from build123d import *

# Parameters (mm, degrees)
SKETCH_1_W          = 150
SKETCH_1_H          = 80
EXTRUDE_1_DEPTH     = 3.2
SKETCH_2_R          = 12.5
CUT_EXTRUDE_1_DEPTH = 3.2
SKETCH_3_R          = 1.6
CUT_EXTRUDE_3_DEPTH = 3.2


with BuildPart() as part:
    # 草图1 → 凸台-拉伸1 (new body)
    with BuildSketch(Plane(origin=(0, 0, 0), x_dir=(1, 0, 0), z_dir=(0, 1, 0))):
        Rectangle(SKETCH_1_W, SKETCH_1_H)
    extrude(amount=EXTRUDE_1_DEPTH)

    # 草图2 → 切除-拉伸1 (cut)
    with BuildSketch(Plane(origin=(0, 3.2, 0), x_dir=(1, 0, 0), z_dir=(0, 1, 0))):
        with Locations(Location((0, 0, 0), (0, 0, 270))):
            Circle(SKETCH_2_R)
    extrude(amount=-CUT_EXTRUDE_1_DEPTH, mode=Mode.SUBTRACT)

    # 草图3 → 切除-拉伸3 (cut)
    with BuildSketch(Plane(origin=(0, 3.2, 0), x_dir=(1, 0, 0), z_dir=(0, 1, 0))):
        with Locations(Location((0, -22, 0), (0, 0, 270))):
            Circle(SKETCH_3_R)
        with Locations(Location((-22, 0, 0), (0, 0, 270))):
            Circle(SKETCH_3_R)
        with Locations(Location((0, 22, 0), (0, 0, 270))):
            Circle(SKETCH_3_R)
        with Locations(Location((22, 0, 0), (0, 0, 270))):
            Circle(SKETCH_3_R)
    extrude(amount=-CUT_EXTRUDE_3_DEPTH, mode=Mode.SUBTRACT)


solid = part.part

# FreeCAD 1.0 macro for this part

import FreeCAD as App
import Part
import Sketcher
from FreeCAD import Vector
Q = App.Units.Quantity


def add_polygon(sketch, points):
    """Adds a closed chain of lines whose ends are joined by coincident constraints."""
    first, n = sketch.GeometryCount, len(points)
    for a, b in zip(points, points[1:] + points[:1]):
        sketch.addGeometry(Part.LineSegment(App.Vector(*a, 0), App.Vector(*b, 0)), False)
    for i in range(n):
        sketch.addConstraint(Sketcher.Constraint("Coincident", first + i, 2, first + (i + 1) % n, 1))

doc = App.newDocument("Part")
body = doc.addObject("PartDesign::Body", "Body")

# Sketch on XZ plane
sketch1 = body.newObject("Sketcher::SketchObject", "Sketch")
sketch1.AttachmentSupport = (doc.getObject("XZ_Plane"), [""])
sketch1.MapMode = "FlatFace"
add_polygon(sketch1, [(-75, -40), (-75, 40), (75, 40), (75, -40)])  # lines 0-3
sketch1.addConstraint(Sketcher.Constraint("Vertical", 0))
sketch1.addConstraint(Sketcher.Constraint("Horizontal", 1))
sketch1.addConstraint(Sketcher.Constraint("Vertical", 2))
sketch1.addConstraint(Sketcher.Constraint("Horizontal", 3))
sketch1.addConstraint(Sketcher.Constraint("Symmetric", 0, 2, 2, 2, -1, 1))
sketch1.addConstraint(Sketcher.Constraint("DistanceX", 1, 1, 1, 2, Q("150 mm")))
sketch1.addConstraint(Sketcher.Constraint("DistanceY", 0, 1, 0, 2, Q("80 mm")))
pad1 = body.newObject("PartDesign::Pad", "Pad")
pad1.Profile = sketch1
pad1.Length = 3.2
pad1.Reversed = True

# Sketch on XZ plane
sketch2 = body.newObject("Sketcher::SketchObject", "Sketch001")
sketch2.AttachmentSupport = (doc.getObject("XZ_Plane"), [""])
sketch2.MapMode = "FlatFace"
sketch2.AttachmentOffset = App.Placement(Vector(0, 0, -3.2), App.Rotation())
sketch2.addGeometry(Part.Circle(Vector(0, 0, 0), Vector(0, 0, 1), 12), False)
sketch2.addConstraint(Sketcher.Constraint("Coincident", 0, 3, -1, 1))
sketch2.addConstraint(Sketcher.Constraint("Diameter", 0, Q("25 mm")))
pocket1 = body.newObject("PartDesign::Pocket", "Pocket")
pocket1.Profile = sketch2
pocket1.Length = 3.2
pocket1.Reversed = True

# Sketch on XZ plane
sketch3 = body.newObject("Sketcher::SketchObject", "Sketch002")
sketch3.AttachmentSupport = (doc.getObject("XZ_Plane"), [""])
sketch3.MapMode = "FlatFace"
sketch3.AttachmentOffset = App.Placement(Vector(0, 0, -3.2), App.Rotation())
sketch3.addGeometry(Part.Circle(Vector(0, 22, 0), Vector(0, 0, 1), 1.6), False)
sketch3.addGeometry(Part.Circle(Vector(-22, 0, 0), Vector(0, 0, 1), 1.6), False)
sketch3.addGeometry(Part.Circle(Vector(0, -22, 0), Vector(0, 0, 1), 1.6), False)
sketch3.addGeometry(Part.Circle(Vector(22, 0, 0), Vector(0, 0, 1), 1.6), False)
sketch3.addConstraint(Sketcher.Constraint("Equal", 0, 1))
sketch3.addConstraint(Sketcher.Constraint("Equal", 1, 2))
sketch3.addConstraint(Sketcher.Constraint("Equal", 2, 3))
sketch3.addConstraint(Sketcher.Constraint("Symmetric", 0, 3, 2, 3, -1, 1))
sketch3.addConstraint(Sketcher.Constraint("Symmetric", 1, 3, 3, 3, -1, 1))
sketch3.addConstraint(Sketcher.Constraint("PointOnObject", 0, 3, -2))
sketch3.addConstraint(Sketcher.Constraint("PointOnObject", 1, 3, -1))
sketch3.addConstraint(Sketcher.Constraint("Diameter", 0, Q("3.2 mm")))
sketch3.addConstraint(Sketcher.Constraint("DistanceY", -1, 1, 0, 3, Q("22 mm")))
sketch3.addConstraint(Sketcher.Constraint("DistanceX", 1, 3, -1, 1, Q("22 mm")))
pocket2 = body.newObject("PartDesign::Pocket", "Pocket001")
pocket2.Profile = sketch3
pocket2.Length = 3.2
pocket2.Reversed = True

doc.recompute()
